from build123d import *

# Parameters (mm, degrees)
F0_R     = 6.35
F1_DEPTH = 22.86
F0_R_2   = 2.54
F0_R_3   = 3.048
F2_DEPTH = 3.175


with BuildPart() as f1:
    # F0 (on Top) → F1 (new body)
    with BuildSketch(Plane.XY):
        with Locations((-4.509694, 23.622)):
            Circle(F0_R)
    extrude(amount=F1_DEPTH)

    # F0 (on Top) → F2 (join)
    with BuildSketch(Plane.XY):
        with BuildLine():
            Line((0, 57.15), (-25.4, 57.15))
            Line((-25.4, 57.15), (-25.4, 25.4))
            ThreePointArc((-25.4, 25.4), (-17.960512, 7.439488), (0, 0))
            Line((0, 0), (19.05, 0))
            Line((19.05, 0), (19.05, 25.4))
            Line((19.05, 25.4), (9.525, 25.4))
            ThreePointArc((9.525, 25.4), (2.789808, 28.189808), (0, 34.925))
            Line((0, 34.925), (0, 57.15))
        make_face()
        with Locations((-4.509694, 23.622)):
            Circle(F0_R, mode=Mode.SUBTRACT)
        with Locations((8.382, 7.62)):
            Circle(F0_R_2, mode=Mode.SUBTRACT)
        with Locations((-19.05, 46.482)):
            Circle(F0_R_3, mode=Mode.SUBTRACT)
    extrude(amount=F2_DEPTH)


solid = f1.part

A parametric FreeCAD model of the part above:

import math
import FreeCAD as App
import Part
import Sketcher

V = App.Vector
Q = App.Units.Quantity

doc = App.newDocument("Part")
params = doc.addObject("Spreadsheet::Sheet", "Params")
for row, (alias, value) in enumerate([
    ("sketch1_diameter", "0.5 in"),
    ("pad1_length", "0.9 in"),
    ("sketch2_radius", "1 in"),
    ("sketch2_diameter", "0.2 in"),
    ("sketch2_diameter2", "0.5 in"),
    ("sketch2_diameter3", "0.24 in"),
    ("sketch2_radius2", "0.375 in"),
    ("pad2_length", "0.125 in"),
], start=1):
    params.set(f"A{row}", alias)
    params.set(f"B{row}", "=" + value)
    params.setAlias(f"B{row}", alias)

body = doc.addObject("PartDesign::Body", "Body")

# Sketch on XY plane
sketch1 = body.newObject("Sketcher::SketchObject", "Sketch")
sketch1.AttachmentSupport = (doc.getObject("XY_Plane"), [""])
sketch1.MapMode = "FlatFace"
sketch1.addGeometry(Part.Circle(V(-5, 24, 0), V(0, 0, 1), 6), False)
sketch1.addConstraint([
    Sketcher.Constraint("Diameter", 0, Q("0.5 in")),
    Sketcher.Constraint("DistanceY", -1, 1, 0, 3, Q("0.93 in")),
    Sketcher.Constraint("DistanceX", 0, 3, -1, 1, Q("4.509694 mm")),
])
sketch1.setExpression("Constraints[0]", "Params.sketch1_diameter")
pad1 = body.newObject("PartDesign::Pad", "Pad")
pad1.Profile = sketch1
pad1.setExpression("Length", "Params.pad1_length")

# Sketch on XY plane
sketch2 = body.newObject("Sketcher::SketchObject", "Sketch001")
sketch2.AttachmentSupport = (doc.getObject("XY_Plane"), [""])
sketch2.MapMode = "FlatFace"
sketch2.addGeometry([
    Part.LineSegment(V(0, 57.1, 0), V(-25.4, 57.1, 0)),  # 0
    Part.LineSegment(V(-25.4, 57.1, 0), V(-25.4, 25.4, 0)),  # 1
    Part.ArcOfCircle(Part.Circle(V(0, 25.4, 0), V(0, 0, 1), 25.4), math.radians(-180), math.radians(-90)),  # 2
    Part.LineSegment(V(0, 0, 0), V(19.1, 0, 0)),  # 3
    Part.LineSegment(V(19.1, 0, 0), V(19.1, 25.4, 0)),  # 4
    Part.LineSegment(V(19.1, 25.4, 0), V(9.5, 25.4, 0)),  # 5
    Part.ArcOfCircle(Part.Circle(V(9.5, 34.9, 0), V(0, 0, 1), 9.5), math.radians(-180), math.radians(-90)),  # 6
    Part.LineSegment(V(0, 34.9, 0), V(0, 57.1, 0)),  # 7
    Part.Circle(V(8.4, 7.6, 0), V(0, 0, 1), 2.5),  # 8
    Part.Circle(V(-4.5, 23.6, 0), V(0, 0, 1), 6.3),  # 9
    Part.Circle(V(-19.1, 46.5, 0), V(0, 0, 1), 3),  # 10
], False)
sketch2.addConstraint([
    Sketcher.Constraint("Coincident", 0, 2, 1, 1),
    Sketcher.Constraint("Tangent", 1, 2, 2, 1),
    Sketcher.Constraint("Tangent", 2, 2, 3, 1),
    Sketcher.Constraint("Coincident", 3, 2, 4, 1),
    Sketcher.Constraint("Coincident", 4, 2, 5, 1),
    Sketcher.Constraint("Tangent", 5, 2, 6, 2),
    Sketcher.Constraint("Tangent", 6, 1, 7, 1),
    Sketcher.Constraint("Coincident", 7, 2, 0, 1),
    Sketcher.Constraint("Horizontal", 0),
    Sketcher.Constraint("Vertical", 1),
    Sketcher.Constraint("Horizontal", 3),
    Sketcher.Constraint("Vertical", 4),
    Sketcher.Constraint("Horizontal", 5),
    Sketcher.Constraint("Vertical", 7),
    Sketcher.Constraint("Coincident", 2, 2, -1, 1),
    Sketcher.Constraint("PointOnObject", 6, 1, -2),
    Sketcher.Constraint("Horizontal", 1, 2, 4, 2),
    Sketcher.Constraint("Radius", 2, Q("1 in")),
    Sketcher.Constraint("Diameter", 8, Q("0.2 in")),
    Sketcher.Constraint("Diameter", 9, Q("0.5 in")),
    Sketcher.Constraint("Diameter", 10, Q("0.24 in")),
    Sketcher.Constraint("Radius", 6, Q("0.375 in")),
    Sketcher.Constraint("DistanceX", 3, 1, 3, 2, Q("0.75 in")),
    Sketcher.Constraint("DistanceY", 1, 2, 1, 1, Q("1.25 in")),
    Sketcher.Constraint("DistanceY", -1, 1, 8, 3, Q("0.3 in")),
    Sketcher.Constraint("DistanceY", 9, 3, 10, 3, Q("0.9 in")),
    Sketcher.Constraint("DistanceX", -1, 1, 8, 3, Q("0.33 in")),
    Sketcher.Constraint("DistanceY", -1, 1, 9, 3, Q("0.93 in")),
    Sketcher.Constraint("DistanceX", 10, 3, -1, 1, Q("0.75 in")),
    Sketcher.Constraint("DistanceX", 9, 3, -1, 1, Q("4.509694 mm")),
])
sketch2.setExpression("Constraints[17]", "Params.sketch2_radius")
sketch2.setExpression("Constraints[18]", "Params.sketch2_diameter")
sketch2.setExpression("Constraints[19]", "Params.sketch2_diameter2")
sketch2.setExpression("Constraints[20]", "Params.sketch2_diameter3")
sketch2.setExpression("Constraints[21]", "Params.sketch2_radius2")
pad2 = body.newObject("PartDesign::Pad", "Pad001")
pad2.Profile = sketch2
pad2.setExpression("Length", "Params.pad2_length")

doc.recompute()
